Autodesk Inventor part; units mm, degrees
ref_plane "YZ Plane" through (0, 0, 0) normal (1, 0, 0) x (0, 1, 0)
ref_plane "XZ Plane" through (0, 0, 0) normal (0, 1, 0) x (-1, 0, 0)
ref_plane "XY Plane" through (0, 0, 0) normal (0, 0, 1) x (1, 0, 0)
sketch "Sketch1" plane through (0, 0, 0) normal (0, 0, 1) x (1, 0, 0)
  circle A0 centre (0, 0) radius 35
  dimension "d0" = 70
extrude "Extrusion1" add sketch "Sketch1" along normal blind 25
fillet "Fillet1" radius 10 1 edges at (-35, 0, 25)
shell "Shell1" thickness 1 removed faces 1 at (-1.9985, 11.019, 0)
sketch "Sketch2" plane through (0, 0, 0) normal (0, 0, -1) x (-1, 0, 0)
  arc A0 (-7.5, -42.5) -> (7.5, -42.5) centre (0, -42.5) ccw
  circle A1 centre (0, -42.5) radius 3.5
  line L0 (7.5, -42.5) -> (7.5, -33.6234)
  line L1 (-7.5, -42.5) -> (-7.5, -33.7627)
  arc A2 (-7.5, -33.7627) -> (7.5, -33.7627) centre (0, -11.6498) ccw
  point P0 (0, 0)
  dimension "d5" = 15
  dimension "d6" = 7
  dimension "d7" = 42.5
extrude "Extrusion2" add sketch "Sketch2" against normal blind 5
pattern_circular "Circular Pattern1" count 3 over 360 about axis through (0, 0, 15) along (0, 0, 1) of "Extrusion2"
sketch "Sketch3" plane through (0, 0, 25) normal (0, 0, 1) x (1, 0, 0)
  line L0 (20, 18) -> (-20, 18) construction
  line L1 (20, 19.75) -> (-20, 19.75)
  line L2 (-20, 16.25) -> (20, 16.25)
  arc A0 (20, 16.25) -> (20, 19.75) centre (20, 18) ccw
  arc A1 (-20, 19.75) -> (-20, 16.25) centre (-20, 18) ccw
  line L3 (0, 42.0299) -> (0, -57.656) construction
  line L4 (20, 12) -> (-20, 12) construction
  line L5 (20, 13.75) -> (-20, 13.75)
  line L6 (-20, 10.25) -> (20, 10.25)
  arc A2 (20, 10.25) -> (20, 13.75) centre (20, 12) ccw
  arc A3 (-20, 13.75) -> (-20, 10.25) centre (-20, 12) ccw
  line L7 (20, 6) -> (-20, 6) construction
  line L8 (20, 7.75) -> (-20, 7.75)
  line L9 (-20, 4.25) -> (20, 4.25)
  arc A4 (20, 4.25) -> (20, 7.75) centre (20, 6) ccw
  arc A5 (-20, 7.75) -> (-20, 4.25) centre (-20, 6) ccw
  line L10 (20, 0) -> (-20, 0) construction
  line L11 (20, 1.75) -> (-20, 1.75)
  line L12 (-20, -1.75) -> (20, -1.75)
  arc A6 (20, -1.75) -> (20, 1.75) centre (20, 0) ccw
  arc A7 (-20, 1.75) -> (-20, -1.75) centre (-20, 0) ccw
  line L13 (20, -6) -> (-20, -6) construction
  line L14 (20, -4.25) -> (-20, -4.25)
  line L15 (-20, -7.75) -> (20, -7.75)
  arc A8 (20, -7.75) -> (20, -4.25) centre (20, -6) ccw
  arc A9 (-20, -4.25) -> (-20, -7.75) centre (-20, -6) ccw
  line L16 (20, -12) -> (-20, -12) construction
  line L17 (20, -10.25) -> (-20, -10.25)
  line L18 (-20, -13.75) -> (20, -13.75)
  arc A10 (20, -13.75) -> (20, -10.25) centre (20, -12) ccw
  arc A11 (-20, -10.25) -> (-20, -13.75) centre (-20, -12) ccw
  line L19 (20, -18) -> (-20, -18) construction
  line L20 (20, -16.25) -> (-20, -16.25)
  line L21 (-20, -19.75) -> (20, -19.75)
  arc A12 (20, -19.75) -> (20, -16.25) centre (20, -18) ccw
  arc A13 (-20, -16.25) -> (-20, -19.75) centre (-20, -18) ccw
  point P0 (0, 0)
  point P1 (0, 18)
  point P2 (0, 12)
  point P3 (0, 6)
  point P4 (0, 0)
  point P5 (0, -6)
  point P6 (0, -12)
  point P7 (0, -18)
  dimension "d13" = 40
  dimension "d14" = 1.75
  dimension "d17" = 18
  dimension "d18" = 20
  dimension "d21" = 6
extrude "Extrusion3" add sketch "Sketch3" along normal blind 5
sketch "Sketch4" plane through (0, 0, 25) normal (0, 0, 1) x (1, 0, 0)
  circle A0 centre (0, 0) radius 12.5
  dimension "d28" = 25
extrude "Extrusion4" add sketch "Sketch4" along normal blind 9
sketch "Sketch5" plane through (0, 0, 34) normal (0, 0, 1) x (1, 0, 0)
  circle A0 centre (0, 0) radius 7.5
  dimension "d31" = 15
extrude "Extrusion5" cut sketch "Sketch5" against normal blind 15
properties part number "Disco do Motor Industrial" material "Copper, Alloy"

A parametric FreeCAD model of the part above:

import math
import FreeCAD as App
import Part
import Sketcher


def edges_at(feature, points):
    """Names of the edges that pass closest to the given points."""
    edges = feature.Shape.Edges
    near = lambda p: min(range(len(edges)), key=lambda i: edges[i].distToShape(Part.Vertex(*p))[0])
    return sorted({f"Edge{near(p) + 1}" for p in points})


def faces_at(feature, points):
    """Names of the faces that lie closest to the given points."""
    faces = feature.Shape.Faces
    near = lambda p: min(range(len(faces)), key=lambda i: faces[i].distToShape(Part.Vertex(*p))[0])
    return sorted({f"Face{near(p) + 1}" for p in points})

doc = App.newDocument("Part")
params = doc.addObject("Spreadsheet::Sheet", "Params")
for row, (alias, value) in enumerate([
    ("sketch1_diameter", "70 mm"),
    ("pad1_length", "25 mm"),
    ("fillet_radius", "10 mm"),
    ("thickness_wall", "1 mm"),
    ("sketch2_diameter", "7 mm"),
    ("sketch2_radius", "7.5 mm"),
    ("pad2_length", "5 mm"),
    ("sketch3_width", "40 mm"),
    ("sketch3_radius", "1.75 mm"),
    ("pad3_length", "5 mm"),
    ("sketch4_diameter", "25 mm"),
    ("pad4_length", "9 mm"),
    ("sketch5_diameter", "15 mm"),
    ("pocket1_length", "15 mm"),
], start=1):
    params.set(f"A{row}", alias)
    params.set(f"B{row}", "=" + value)
    params.setAlias(f"B{row}", alias)

body = doc.addObject("PartDesign::Body", "Body")

# Sketch on XY plane
sketch1 = doc.addObject("Sketcher::SketchObject", "Sketch")
body.addObject(sketch1)
sketch1.AttachmentSupport = (doc.XY_Plane, [""])
sketch1.MapMode = "FlatFace"
sketch1.addGeometry(Part.Circle(App.Vector(0, 0, 0), App.Vector(0, 0, 1), 35), False)
sketch1.addConstraint([
    Sketcher.Constraint("Coincident", 0, 3, -1, 1),
    Sketcher.Constraint("Diameter", 0, 70.0),
])
sketch1.setExpression("Constraints[1]", "Params.sketch1_diameter")
pad1 = doc.addObject("PartDesign::Pad", "Pad")
body.addObject(pad1)
pad1.Profile = sketch1
pad1.setExpression("Length", "Params.pad1_length")
doc.recompute()

fillet = doc.addObject("PartDesign::Fillet", "Fillet")
body.addObject(fillet)
fillet.Base = (pad1, edges_at(pad1, [(-35, 0, 25)]))
fillet.setExpression("Radius", "Params.fillet_radius")
doc.recompute()

thickness = doc.addObject("PartDesign::Thickness", "Thickness")
body.addObject(thickness)
thickness.Base = (fillet, faces_at(fillet, [(-1.998, 11.019, 0)]))
thickness.setExpression("Value", "Params.thickness_wall")
thickness.Reversed = True
thickness.Join = "Intersection"

# Sketch on XY plane
sketch2 = doc.addObject("Sketcher::SketchObject", "Sketch001")
body.addObject(sketch2)
sketch2.AttachmentSupport = (doc.XY_Plane, [""])
sketch2.MapMode = "FlatFace"
sketch2.addGeometry([
    Part.LineSegment(App.Vector(7.5, -33.8, 0), App.Vector(7.5, -42.5, 0)),  # 0
    Part.ArcOfCircle(Part.Circle(App.Vector(0, -42.5, 0), App.Vector(0, 0, 1), 7.5), math.radians(180), math.radians(360)),  # 1
    Part.LineSegment(App.Vector(-7.5, -42.5, 0), App.Vector(-7.5, -33.8, 0)),  # 2
    Part.ArcOfCircle(Part.Circle(App.Vector(0, -11.6, 0), App.Vector(0, 0, 1), 23.4), math.radians(-109), math.radians(-71)),  # 3
    Part.Circle(App.Vector(0, -42.5, 0), App.Vector(0, 0, 1), 3.5),  # 4
], False)
sketch2.addConstraint([
    Sketcher.Constraint("Tangent", 0, 2, 1, 2),
    Sketcher.Constraint("Tangent", 1, 1, 2, 1),
    Sketcher.Constraint("Coincident", 2, 2, 3, 1),
    Sketcher.Constraint("Coincident", 3, 2, 0, 1),
    Sketcher.Constraint("Vertical", 0),
    Sketcher.Constraint("Vertical", 2),
    Sketcher.Constraint("Coincident", 4, 3, 1, 3),
    Sketcher.Constraint("Symmetric", 2, 2, 3, 2, -2),
    Sketcher.Constraint("Diameter", 4, 7.0),
    Sketcher.Constraint("Radius", 1, 7.5),
    Sketcher.Constraint("DistanceY", 1, 3, -1, 1, 42.5),
    Sketcher.Constraint("Radius", 3, 23.3502),
    Sketcher.Constraint("DistanceY", 0, 2, 0, 1, 8.7373),
])
sketch2.setExpression("Constraints[8]", "Params.sketch2_diameter")
sketch2.setExpression("Constraints[9]", "Params.sketch2_radius")
pad2 = doc.addObject("PartDesign::Pad", "Pad001")
body.addObject(pad2)
pad2.Profile = sketch2
pad2.setExpression("Length", "Params.pad2_length")
doc.recompute()

polarpattern = doc.addObject("PartDesign::PolarPattern", "PolarPattern")
body.addObject(polarpattern)
polarpattern.Originals = [pad2]
polarpattern.Axis = (doc.Z_Axis, [""])
polarpattern.Angle = 360
polarpattern.Occurrences = 3
body.Tip = polarpattern

# Sketch on XY plane
sketch3 = doc.addObject("Sketcher::SketchObject", "Sketch002")
body.addObject(sketch3)
sketch3.AttachmentSupport = (doc.XY_Plane, [""])
sketch3.MapMode = "FlatFace"
sketch3.AttachmentOffset = App.Placement(App.Vector(0, 0, 25), App.Rotation())
sketch3.addGeometry([
    Part.ArcOfCircle(Part.Circle(App.Vector(20, 18, 0), App.Vector(0, 0, 1), 1.8), math.radians(-90), math.radians(90)),  # 0
    Part.LineSegment(App.Vector(20, 19.8, 0), App.Vector(-20, 19.8, 0)),  # 1
    Part.ArcOfCircle(Part.Circle(App.Vector(-20, 18, 0), App.Vector(0, 0, 1), 1.8), math.radians(90), math.radians(270)),  # 2
    Part.LineSegment(App.Vector(-20, 16.2, 0), App.Vector(20, 16.2, 0)),  # 3
    Part.ArcOfCircle(Part.Circle(App.Vector(20, 12, 0), App.Vector(0, 0, 1), 1.8), math.radians(-90), math.radians(90)),  # 4
    Part.LineSegment(App.Vector(20, 13.8, 0), App.Vector(-20, 13.8, 0)),  # 5
    Part.ArcOfCircle(Part.Circle(App.Vector(-20, 12, 0), App.Vector(0, 0, 1), 1.8), math.radians(90), math.radians(270)),  # 6
    Part.LineSegment(App.Vector(-20, 10.2, 0), App.Vector(20, 10.2, 0)),  # 7
    Part.ArcOfCircle(Part.Circle(App.Vector(20, 6, 0), App.Vector(0, 0, 1), 1.8), math.radians(-90), math.radians(90)),  # 8
    Part.LineSegment(App.Vector(20, 7.8, 0), App.Vector(-20, 7.8, 0)),  # 9
    Part.ArcOfCircle(Part.Circle(App.Vector(-20, 6, 0), App.Vector(0, 0, 1), 1.8), math.radians(90), math.radians(270)),  # 10
    Part.LineSegment(App.Vector(-20, 4.2, 0), App.Vector(20, 4.2, 0)),  # 11
    Part.ArcOfCircle(Part.Circle(App.Vector(20, 0, 0), App.Vector(0, 0, 1), 1.8), math.radians(-90), math.radians(90)),  # 12
    Part.LineSegment(App.Vector(20, 1.8, 0), App.Vector(-20, 1.8, 0)),  # 13
    Part.ArcOfCircle(Part.Circle(App.Vector(-20, 0, 0), App.Vector(0, 0, 1), 1.8), math.radians(90), math.radians(270)),  # 14
    Part.LineSegment(App.Vector(-20, -1.8, 0), App.Vector(20, -1.8, 0)),  # 15
    Part.ArcOfCircle(Part.Circle(App.Vector(20, -6, 0), App.Vector(0, 0, 1), 1.8), math.radians(-90), math.radians(90)),  # 16
    Part.LineSegment(App.Vector(20, -4.2, 0), App.Vector(-20, -4.2, 0)),  # 17
    Part.ArcOfCircle(Part.Circle(App.Vector(-20, -6, 0), App.Vector(0, 0, 1), 1.8), math.radians(90), math.radians(270)),  # 18
    Part.LineSegment(App.Vector(-20, -7.8, 0), App.Vector(20, -7.8, 0)),  # 19
    Part.ArcOfCircle(Part.Circle(App.Vector(20, -12, 0), App.Vector(0, 0, 1), 1.8), math.radians(-90), math.radians(90)),  # 20
    Part.LineSegment(App.Vector(20, -10.2, 0), App.Vector(-20, -10.2, 0)),  # 21
    Part.ArcOfCircle(Part.Circle(App.Vector(-20, -12, 0), App.Vector(0, 0, 1), 1.8), math.radians(90), math.radians(270)),  # 22
    Part.LineSegment(App.Vector(-20, -13.8, 0), App.Vector(20, -13.8, 0)),  # 23
    Part.ArcOfCircle(Part.Circle(App.Vector(20, -18, 0), App.Vector(0, 0, 1), 1.8), math.radians(-90), math.radians(90)),  # 24
    Part.LineSegment(App.Vector(20, -16.2, 0), App.Vector(-20, -16.2, 0)),  # 25
    Part.ArcOfCircle(Part.Circle(App.Vector(-20, -18, 0), App.Vector(0, 0, 1), 1.8), math.radians(90), math.radians(270)),  # 26
    Part.LineSegment(App.Vector(-20, -19.8, 0), App.Vector(20, -19.8, 0)),  # 27
], False)
sketch3.addConstraint([
    Sketcher.Constraint("Tangent", 0, 2, 1, 1),
    Sketcher.Constraint("Tangent", 1, 2, 2, 1),
    Sketcher.Constraint("Tangent", 2, 2, 3, 1),
    Sketcher.Constraint("Tangent", 3, 2, 0, 1),
    Sketcher.Constraint("Tangent", 4, 2, 5, 1),
    Sketcher.Constraint("Tangent", 5, 2, 6, 1),
    Sketcher.Constraint("Tangent", 6, 2, 7, 1),
    Sketcher.Constraint("Tangent", 7, 2, 4, 1),
    Sketcher.Constraint("Tangent", 8, 2, 9, 1),
    Sketcher.Constraint("Tangent", 9, 2, 10, 1),
    Sketcher.Constraint("Tangent", 10, 2, 11, 1),
    Sketcher.Constraint("Tangent", 11, 2, 8, 1),
    Sketcher.Constraint("Tangent", 12, 2, 13, 1),
    Sketcher.Constraint("Tangent", 13, 2, 14, 1),
    Sketcher.Constraint("Tangent", 14, 2, 15, 1),
    Sketcher.Constraint("Tangent", 15, 2, 12, 1),
    Sketcher.Constraint("Tangent", 16, 2, 17, 1),
    Sketcher.Constraint("Tangent", 17, 2, 18, 1),
    Sketcher.Constraint("Tangent", 18, 2, 19, 1),
    Sketcher.Constraint("Tangent", 19, 2, 16, 1),
    Sketcher.Constraint("Tangent", 20, 2, 21, 1),
    Sketcher.Constraint("Tangent", 21, 2, 22, 1),
    Sketcher.Constraint("Tangent", 22, 2, 23, 1),
    Sketcher.Constraint("Tangent", 23, 2, 20, 1),
    Sketcher.Constraint("Tangent", 24, 2, 25, 1),
    Sketcher.Constraint("Tangent", 25, 2, 26, 1),
    Sketcher.Constraint("Tangent", 26, 2, 27, 1),
    Sketcher.Constraint("Tangent", 27, 2, 24, 1),
    Sketcher.Constraint("Horizontal", 1),
    Sketcher.Constraint("Horizontal", 3),
    Sketcher.Constraint("Horizontal", 5),
    Sketcher.Constraint("Horizontal", 7),
    Sketcher.Constraint("Horizontal", 9),
    Sketcher.Constraint("Horizontal", 11),
    Sketcher.Constraint("Horizontal", 13),
    Sketcher.Constraint("Horizontal", 15),
    Sketcher.Constraint("Horizontal", 17),
    Sketcher.Constraint("Horizontal", 19),
    Sketcher.Constraint("Horizontal", 21),
    Sketcher.Constraint("Horizontal", 23),
    Sketcher.Constraint("Horizontal", 25),
    Sketcher.Constraint("Horizontal", 27),
    Sketcher.Constraint("Equal", 2, 4),
    Sketcher.Constraint("Equal", 6, 8),
    Sketcher.Constraint("Equal", 10, 12),
    Sketcher.Constraint("Equal", 14, 16),
    Sketcher.Constraint("Equal", 18, 20),
    Sketcher.Constraint("Equal", 22, 24),
    Sketcher.Constraint("Symmetric", 12, 3, 14, 3, -1, 1),
    Sketcher.Constraint("Symmetric", 10, 3, 16, 3, -1, 1),
    Sketcher.Constraint("Symmetric", 6, 3, 20, 3, -1, 1),
    Sketcher.Constraint("Symmetric", 2, 3, 24, 3, -1, 1),
    Sketcher.Constraint("Vertical", 0, 3, 4, 3),
    Sketcher.Constraint("Vertical", 2, 3, 6, 3),
    Sketcher.Constraint("Vertical", 4, 3, 8, 3),
    Sketcher.Constraint("Vertical", 6, 3, 10, 3),
    Sketcher.Constraint("Vertical", 8, 3, 12, 3),
    Sketcher.Constraint("Vertical", 10, 3, 14, 3),
    Sketcher.Constraint("Vertical", 14, 3, 18, 3),
    Sketcher.Constraint("Vertical", 18, 3, 22, 3),
    Sketcher.Constraint("Vertical", 22, 3, 26, 3),
    Sketcher.Constraint("DistanceX", 1, 2, 1, 1, 40.0),
    Sketcher.Constraint("Radius", 0, 1.75),
    Sketcher.Constraint("DistanceY", -1, 1, 0, 3, 18.0),
    Sketcher.Constraint("DistanceY", -1, 1, 8, 3, 6.0),
    Sketcher.Constraint("DistanceY", 4, 3, 0, 3, 6.0),
])
sketch3.setExpression("Constraints[61]", "Params.sketch3_width")
sketch3.setExpression("Constraints[62]", "Params.sketch3_radius")
pad3 = doc.addObject("PartDesign::Pad", "Pad002")
body.addObject(pad3)
pad3.Profile = sketch3
pad3.setExpression("Length", "Params.pad3_length")

# Sketch on XY plane
sketch4 = doc.addObject("Sketcher::SketchObject", "Sketch003")
body.addObject(sketch4)
sketch4.AttachmentSupport = (doc.XY_Plane, [""])
sketch4.MapMode = "FlatFace"
sketch4.AttachmentOffset = App.Placement(App.Vector(0, 0, 25), App.Rotation())
sketch4.addGeometry(Part.Circle(App.Vector(0, 0, 0), App.Vector(0, 0, 1), 12), False)
sketch4.addConstraint([
    Sketcher.Constraint("Coincident", 0, 3, -1, 1),
    Sketcher.Constraint("Diameter", 0, 25.0),
])
sketch4.setExpression("Constraints[1]", "Params.sketch4_diameter")
pad4 = doc.addObject("PartDesign::Pad", "Pad003")
body.addObject(pad4)
pad4.Profile = sketch4
pad4.setExpression("Length", "Params.pad4_length")

# Sketch on XY plane
sketch5 = doc.addObject("Sketcher::SketchObject", "Sketch004")
body.addObject(sketch5)
sketch5.AttachmentSupport = (doc.XY_Plane, [""])
sketch5.MapMode = "FlatFace"
sketch5.AttachmentOffset = App.Placement(App.Vector(0, 0, 34), App.Rotation())
sketch5.addGeometry(Part.Circle(App.Vector(0, 0, 0), App.Vector(0, 0, 1), 8), False)
sketch5.addConstraint([
    Sketcher.Constraint("Coincident", 0, 3, -1, 1),
    Sketcher.Constraint("Diameter", 0, 15.0),
])
sketch5.setExpression("Constraints[1]", "Params.sketch5_diameter")
pocket1 = doc.addObject("PartDesign::Pocket", "Pocket")
body.addObject(pocket1)
pocket1.Profile = sketch5
pocket1.setExpression("Length", "Params.pocket1_length")

doc.recompute()
